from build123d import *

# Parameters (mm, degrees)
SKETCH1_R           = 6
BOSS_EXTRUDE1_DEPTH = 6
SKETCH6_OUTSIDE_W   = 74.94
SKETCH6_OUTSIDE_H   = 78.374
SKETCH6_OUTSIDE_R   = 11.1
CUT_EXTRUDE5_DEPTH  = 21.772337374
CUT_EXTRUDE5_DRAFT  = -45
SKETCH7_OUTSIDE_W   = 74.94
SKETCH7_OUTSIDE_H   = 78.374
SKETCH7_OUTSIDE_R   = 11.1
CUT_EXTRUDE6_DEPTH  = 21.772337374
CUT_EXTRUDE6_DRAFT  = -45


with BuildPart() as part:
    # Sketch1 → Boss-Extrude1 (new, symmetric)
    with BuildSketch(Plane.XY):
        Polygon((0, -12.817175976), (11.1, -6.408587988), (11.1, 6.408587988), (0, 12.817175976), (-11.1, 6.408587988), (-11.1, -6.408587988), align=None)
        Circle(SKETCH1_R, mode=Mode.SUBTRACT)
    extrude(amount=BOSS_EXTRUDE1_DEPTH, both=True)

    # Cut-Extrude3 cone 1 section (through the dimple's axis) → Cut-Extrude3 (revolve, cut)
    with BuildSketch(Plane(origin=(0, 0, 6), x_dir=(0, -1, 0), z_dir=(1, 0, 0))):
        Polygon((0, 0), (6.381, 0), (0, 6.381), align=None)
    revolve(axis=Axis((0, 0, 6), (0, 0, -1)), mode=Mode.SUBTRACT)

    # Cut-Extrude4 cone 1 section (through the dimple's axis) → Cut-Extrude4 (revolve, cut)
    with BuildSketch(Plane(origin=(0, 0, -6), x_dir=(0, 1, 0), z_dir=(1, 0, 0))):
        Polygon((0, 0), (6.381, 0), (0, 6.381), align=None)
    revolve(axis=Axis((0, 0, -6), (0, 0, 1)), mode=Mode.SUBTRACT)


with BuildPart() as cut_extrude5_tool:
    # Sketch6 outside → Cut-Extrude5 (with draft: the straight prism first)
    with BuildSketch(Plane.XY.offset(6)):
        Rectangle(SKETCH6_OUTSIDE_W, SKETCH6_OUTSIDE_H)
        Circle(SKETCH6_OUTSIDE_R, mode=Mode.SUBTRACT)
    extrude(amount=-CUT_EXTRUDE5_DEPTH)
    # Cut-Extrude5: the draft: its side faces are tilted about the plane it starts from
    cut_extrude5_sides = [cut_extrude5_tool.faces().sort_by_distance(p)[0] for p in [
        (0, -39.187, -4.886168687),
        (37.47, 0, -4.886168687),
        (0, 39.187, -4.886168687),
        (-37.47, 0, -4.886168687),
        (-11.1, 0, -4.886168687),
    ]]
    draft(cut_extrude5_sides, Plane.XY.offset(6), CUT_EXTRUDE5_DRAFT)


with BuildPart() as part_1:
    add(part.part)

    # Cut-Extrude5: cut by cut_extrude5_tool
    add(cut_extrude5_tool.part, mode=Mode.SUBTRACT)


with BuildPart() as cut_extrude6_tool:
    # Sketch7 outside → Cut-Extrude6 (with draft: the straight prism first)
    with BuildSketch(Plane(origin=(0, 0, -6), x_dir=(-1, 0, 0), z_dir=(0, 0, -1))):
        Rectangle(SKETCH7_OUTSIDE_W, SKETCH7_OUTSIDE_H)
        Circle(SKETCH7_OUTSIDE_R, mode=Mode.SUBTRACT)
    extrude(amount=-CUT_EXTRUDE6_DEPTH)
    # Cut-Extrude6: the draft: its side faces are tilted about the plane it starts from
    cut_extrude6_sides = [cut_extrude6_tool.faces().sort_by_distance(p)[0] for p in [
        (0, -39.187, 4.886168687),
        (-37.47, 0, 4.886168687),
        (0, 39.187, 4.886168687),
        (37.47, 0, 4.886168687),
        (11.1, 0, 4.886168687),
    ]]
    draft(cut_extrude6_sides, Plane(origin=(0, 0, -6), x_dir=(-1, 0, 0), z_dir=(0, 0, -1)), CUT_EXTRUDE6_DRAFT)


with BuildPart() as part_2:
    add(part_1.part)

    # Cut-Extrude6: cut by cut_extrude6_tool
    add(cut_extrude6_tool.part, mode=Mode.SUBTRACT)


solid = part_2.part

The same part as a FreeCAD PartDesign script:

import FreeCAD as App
import Part
import Sketcher
Q = App.Units.Quantity


def faces_at(feature, points):
    """Names of the faces that lie closest to the given points."""
    faces = feature.Shape.Faces
    near = lambda p: min(range(len(faces)), key=lambda i: faces[i].distToShape(Part.Vertex(*p))[0])
    return sorted({f"Face{near(p) + 1}" for p in points})


def add_polygon(sketch, points):
    """Adds a closed chain of lines whose ends are joined by coincident constraints."""
    first, n = sketch.GeometryCount, len(points)
    for a, b in zip(points, points[1:] + points[:1]):
        sketch.addGeometry(Part.LineSegment(App.Vector(*a, 0), App.Vector(*b, 0)), False)
    for i in range(n):
        sketch.addConstraint(Sketcher.Constraint("Coincident", first + i, 2, first + (i + 1) % n, 1))

doc = App.newDocument("Part")
body = doc.addObject("PartDesign::Body", "Body")

sketch1 = body.newObject("Sketcher::SketchObject", "Sketch")
sketch1.AttachmentSupport = (doc.getObject("XY_Plane"), [""])
sketch1.MapMode = "FlatFace"
add_polygon(sketch1, [(0, -12.817176), (11.1, -6.408588), (11.1, 6.408588), (0, 12.817176), (-11.1, 6.408588), (-11.1, -6.408588)])
sketch1.addGeometry(Part.Circle(App.Vector(0, 0, 0), App.Vector(0, 0, 1), 6), False)
sketch1.addConstraint([
    Sketcher.Constraint("Vertical", 1),
    Sketcher.Constraint("Vertical", 4),
    Sketcher.Constraint("Coincident", 6, 3, -1, 1),
    Sketcher.Constraint("Symmetric", 0, 2, 3, 2, -1, 1),
    Sketcher.Constraint("Symmetric", 2, 2, 5, 2, -1, 1),
    Sketcher.Constraint("PointOnObject", 2, 2, -2),
    Sketcher.Constraint("Parallel", 2, 5),
    Sketcher.Constraint("Horizontal", 1, 2, 3, 2),
    Sketcher.Constraint("Diameter", 6, Q("12 mm")),
    Sketcher.Constraint("Angle", 0, Q("30 deg")),
    Sketcher.Constraint("DistanceX", -1, 1, 0, 2, Q("11.1 mm")),
    Sketcher.Constraint("DistanceY", 1, 1, 1, 2, Q("12.817176 mm")),
])
pad1 = body.newObject("PartDesign::Pad", "Pad")
pad1.Profile = sketch1
pad1.Length = 12
pad1.Midplane = True

sketch2 = body.newObject("Sketcher::SketchObject", "Sketch001")
sketch2.AttachmentSupport = (doc.getObject("YZ_Plane"), [""])
sketch2.MapMode = "FlatFace"
add_polygon(sketch2, [(0, 6), (-6.381, 6), (0, -0.381)])
sketch2.addConstraint([
    Sketcher.Constraint("Horizontal", 0),
    Sketcher.Constraint("Vertical", 2),
    Sketcher.Constraint("PointOnObject", 1, 2, -2),
    Sketcher.Constraint("Equal", 0, 2),
    Sketcher.Constraint("DistanceY", -1, 1, 0, 2, Q("6 mm")),
    Sketcher.Constraint("DistanceX", 0, 2, 0, 1, Q("6.381 mm")),
])
groove = body.newObject("PartDesign::Groove", "Groove")
groove.Profile = sketch2
groove.ReferenceAxis = (sketch2, ["V_Axis"])
groove.Angle = 360

sketch3 = body.newObject("Sketcher::SketchObject", "Sketch002")
sketch3.AttachmentSupport = (doc.getObject("YZ_Plane"), [""])
sketch3.MapMode = "FlatFace"
add_polygon(sketch3, [(0, -6), (6.381, -6), (0, 0.381)])
sketch3.addConstraint([
    Sketcher.Constraint("Horizontal", 0),
    Sketcher.Constraint("Vertical", 2),
    Sketcher.Constraint("PointOnObject", 1, 2, -2),
    Sketcher.Constraint("Equal", 0, 2),
    Sketcher.Constraint("DistanceY", 0, 2, -1, 1, Q("6 mm")),
    Sketcher.Constraint("DistanceX", 0, 1, 0, 2, Q("6.381 mm")),
])
groove2 = body.newObject("PartDesign::Groove", "Groove001")
groove2.Profile = sketch3
groove2.ReferenceAxis = (sketch3, ["V_Axis"])
groove2.Angle = 360
body2 = doc.addObject("PartDesign::Body", "Body001")

sketch4 = body2.newObject("Sketcher::SketchObject", "Sketch003")
sketch4.AttachmentSupport = (doc.getObject("XY_Plane001"), [""])
sketch4.MapMode = "FlatFace"
sketch4.AttachmentOffset = App.Placement(App.Vector(0, 0, 6), App.Rotation())
add_polygon(sketch4, [(-37.47, 39.187), (-37.47, -39.187), (37.47, -39.187), (37.47, 39.187)])
sketch4.addGeometry(Part.Circle(App.Vector(0, 0, 0), App.Vector(0, 0, 1), 11.1), False)
sketch4.addConstraint([
    Sketcher.Constraint("Vertical", 0),
    Sketcher.Constraint("Horizontal", 1),
    Sketcher.Constraint("Vertical", 2),
    Sketcher.Constraint("Horizontal", 3),
    Sketcher.Constraint("Coincident", 4, 3, -1, 1),
    Sketcher.Constraint("Symmetric", 0, 2, 2, 2, -1, 1),
    Sketcher.Constraint("Diameter", 4, Q("22.2 mm")),
    Sketcher.Constraint("DistanceX", 1, 1, 1, 2, Q("74.94 mm")),
    Sketcher.Constraint("DistanceY", 0, 2, 0, 1, Q("78.374 mm")),
])
pad2 = body2.newObject("PartDesign::Pad", "Pad001")
pad2.Profile = sketch4
pad2.Length = 21.772337
pad2.Reversed = True
doc.recompute()

datumplane = body2.newObject("PartDesign::Plane", "DatumPlane")
datumplane.AttachmentSupport = (doc.getObject("XY_Plane001"), [""])
datumplane.MapMode = "FlatFace"
datumplane.AttachmentOffset = App.Placement(App.Vector(0, 0, 6), App.Rotation())
draft = body2.newObject("PartDesign::Draft", "Draft")
draft.Base = (pad2, faces_at(pad2, [
    (0, -39.187, -4.886),
    (37.47, 0, -4.886),
    (0, 39.187, -4.886),
    (-37.47, 0, -4.886),
    (-11.1, 0, -4.886),
]))
draft.NeutralPlane = (datumplane, [""])
draft.Angle = 45
draft.Reversed = True
doc.recompute()

boolean = body.newObject("PartDesign::Boolean", "Boolean")
boolean.Type = "Cut"
boolean.addObjects([body2])
body3 = doc.addObject("PartDesign::Body", "Body002")

sketch5 = body3.newObject("Sketcher::SketchObject", "Sketch004")
sketch5.AttachmentSupport = (doc.getObject("XY_Plane002"), [""])
sketch5.MapMode = "FlatFace"
sketch5.AttachmentOffset = App.Placement(App.Vector(0, 0, -6), App.Rotation())
add_polygon(sketch5, [(37.47, 39.187), (37.47, -39.187), (-37.47, -39.187), (-37.47, 39.187)])
sketch5.addGeometry(Part.Circle(App.Vector(0, 0, 0), App.Vector(0, 0, 1), 11.1), False)
sketch5.addConstraint([
    Sketcher.Constraint("Vertical", 0),
    Sketcher.Constraint("Horizontal", 1),
    Sketcher.Constraint("Vertical", 2),
    Sketcher.Constraint("Horizontal", 3),
    Sketcher.Constraint("Coincident", 4, 3, -1, 1),
    Sketcher.Constraint("Symmetric", 0, 2, 2, 2, -1, 1),
    Sketcher.Constraint("Diameter", 4, Q("22.2 mm")),
    Sketcher.Constraint("DistanceX", 1, 2, 1, 1, Q("74.94 mm")),
    Sketcher.Constraint("DistanceY", 0, 2, 0, 1, Q("78.374 mm")),
])
pad3 = body3.newObject("PartDesign::Pad", "Pad002")
pad3.Profile = sketch5
pad3.Length = 21.772337
doc.recompute()

datumplane2 = body3.newObject("PartDesign::Plane", "DatumPlane001")
datumplane2.AttachmentSupport = (doc.getObject("XY_Plane002"), [""])
datumplane2.MapMode = "FlatFace"
datumplane2.AttachmentOffset = App.Placement(App.Vector(0, 0, -6), App.Rotation())
draft2 = body3.newObject("PartDesign::Draft", "Draft001")
draft2.Base = (pad3, faces_at(pad3, [
    (0, -39.187, 4.886),
    (-37.47, 0, 4.886),
    (0, 39.187, 4.886),
    (37.47, 0, 4.886),
    (11.1, 0, 4.886),
]))
draft2.NeutralPlane = (datumplane2, [""])
draft2.Angle = 45
draft2.Reversed = False
doc.recompute()

boolean2 = body.newObject("PartDesign::Boolean", "Boolean001")
boolean2.Type = "Cut"
boolean2.addObjects([body3])

doc.recompute()
